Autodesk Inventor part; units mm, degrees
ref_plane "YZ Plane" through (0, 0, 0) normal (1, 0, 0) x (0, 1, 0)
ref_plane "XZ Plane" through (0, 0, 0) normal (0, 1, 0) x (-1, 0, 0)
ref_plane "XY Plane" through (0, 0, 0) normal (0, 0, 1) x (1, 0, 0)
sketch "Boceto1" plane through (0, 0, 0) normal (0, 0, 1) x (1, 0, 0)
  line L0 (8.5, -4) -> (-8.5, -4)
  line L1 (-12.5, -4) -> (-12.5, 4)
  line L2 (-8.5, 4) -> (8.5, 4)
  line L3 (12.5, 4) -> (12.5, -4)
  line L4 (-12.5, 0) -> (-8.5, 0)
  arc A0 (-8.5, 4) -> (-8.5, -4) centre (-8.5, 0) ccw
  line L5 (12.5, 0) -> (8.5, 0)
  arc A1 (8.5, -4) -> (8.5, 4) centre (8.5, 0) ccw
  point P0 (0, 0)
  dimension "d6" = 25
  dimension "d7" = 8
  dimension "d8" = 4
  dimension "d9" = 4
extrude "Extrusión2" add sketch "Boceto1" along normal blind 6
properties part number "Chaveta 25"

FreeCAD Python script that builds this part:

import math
import FreeCAD as App
import Part
import Sketcher
from FreeCAD import Vector
Q = App.Units.Quantity

doc = App.newDocument("Part")
body = doc.addObject("PartDesign::Body", "Body")

# Sketch on XY plane
sketch1 = doc.addObject("Sketcher::SketchObject", "Sketch")
body.addObject(sketch1)
sketch1.AttachmentSupport = (doc.XY_Plane, [""])
sketch1.MapMode = "FlatFace"
sketch1.addGeometry([
    Part.LineSegment(Vector(-8.5, -4, 0), Vector(8.5, -4, 0)),
    Part.ArcOfCircle(Part.Circle(Vector(8.5, 0, 0), Vector(0, 0, 1), 4), math.radians(-90), math.radians(90)),
    Part.LineSegment(Vector(8.5, 4, 0), Vector(-8.5, 4, 0)),
    Part.ArcOfCircle(Part.Circle(Vector(-8.5, 0, 0), Vector(0, 0, 1), 4), math.radians(90), math.radians(270)),
], False)
sketch1.addConstraint([
    Sketcher.Constraint("Tangent", 0, 2, 1, 1),
    Sketcher.Constraint("Tangent", 1, 2, 2, 1),
    Sketcher.Constraint("Tangent", 2, 2, 3, 1),
    Sketcher.Constraint("Tangent", 3, 2, 0, 1),
    Sketcher.Constraint("Horizontal", 0),
    Sketcher.Constraint("Horizontal", 2),
    Sketcher.Constraint("Symmetric", 1, 3, 3, 3, -1, 1),
    Sketcher.Constraint("Radius", 1, Q("4 mm")),
    Sketcher.Constraint("DistanceX", 0, 1, 0, 2, Q("17 mm")),
])
pad1 = doc.addObject("PartDesign::Pad", "Pad")
body.addObject(pad1)
pad1.Profile = sketch1
pad1.Length = 6

doc.recompute()
